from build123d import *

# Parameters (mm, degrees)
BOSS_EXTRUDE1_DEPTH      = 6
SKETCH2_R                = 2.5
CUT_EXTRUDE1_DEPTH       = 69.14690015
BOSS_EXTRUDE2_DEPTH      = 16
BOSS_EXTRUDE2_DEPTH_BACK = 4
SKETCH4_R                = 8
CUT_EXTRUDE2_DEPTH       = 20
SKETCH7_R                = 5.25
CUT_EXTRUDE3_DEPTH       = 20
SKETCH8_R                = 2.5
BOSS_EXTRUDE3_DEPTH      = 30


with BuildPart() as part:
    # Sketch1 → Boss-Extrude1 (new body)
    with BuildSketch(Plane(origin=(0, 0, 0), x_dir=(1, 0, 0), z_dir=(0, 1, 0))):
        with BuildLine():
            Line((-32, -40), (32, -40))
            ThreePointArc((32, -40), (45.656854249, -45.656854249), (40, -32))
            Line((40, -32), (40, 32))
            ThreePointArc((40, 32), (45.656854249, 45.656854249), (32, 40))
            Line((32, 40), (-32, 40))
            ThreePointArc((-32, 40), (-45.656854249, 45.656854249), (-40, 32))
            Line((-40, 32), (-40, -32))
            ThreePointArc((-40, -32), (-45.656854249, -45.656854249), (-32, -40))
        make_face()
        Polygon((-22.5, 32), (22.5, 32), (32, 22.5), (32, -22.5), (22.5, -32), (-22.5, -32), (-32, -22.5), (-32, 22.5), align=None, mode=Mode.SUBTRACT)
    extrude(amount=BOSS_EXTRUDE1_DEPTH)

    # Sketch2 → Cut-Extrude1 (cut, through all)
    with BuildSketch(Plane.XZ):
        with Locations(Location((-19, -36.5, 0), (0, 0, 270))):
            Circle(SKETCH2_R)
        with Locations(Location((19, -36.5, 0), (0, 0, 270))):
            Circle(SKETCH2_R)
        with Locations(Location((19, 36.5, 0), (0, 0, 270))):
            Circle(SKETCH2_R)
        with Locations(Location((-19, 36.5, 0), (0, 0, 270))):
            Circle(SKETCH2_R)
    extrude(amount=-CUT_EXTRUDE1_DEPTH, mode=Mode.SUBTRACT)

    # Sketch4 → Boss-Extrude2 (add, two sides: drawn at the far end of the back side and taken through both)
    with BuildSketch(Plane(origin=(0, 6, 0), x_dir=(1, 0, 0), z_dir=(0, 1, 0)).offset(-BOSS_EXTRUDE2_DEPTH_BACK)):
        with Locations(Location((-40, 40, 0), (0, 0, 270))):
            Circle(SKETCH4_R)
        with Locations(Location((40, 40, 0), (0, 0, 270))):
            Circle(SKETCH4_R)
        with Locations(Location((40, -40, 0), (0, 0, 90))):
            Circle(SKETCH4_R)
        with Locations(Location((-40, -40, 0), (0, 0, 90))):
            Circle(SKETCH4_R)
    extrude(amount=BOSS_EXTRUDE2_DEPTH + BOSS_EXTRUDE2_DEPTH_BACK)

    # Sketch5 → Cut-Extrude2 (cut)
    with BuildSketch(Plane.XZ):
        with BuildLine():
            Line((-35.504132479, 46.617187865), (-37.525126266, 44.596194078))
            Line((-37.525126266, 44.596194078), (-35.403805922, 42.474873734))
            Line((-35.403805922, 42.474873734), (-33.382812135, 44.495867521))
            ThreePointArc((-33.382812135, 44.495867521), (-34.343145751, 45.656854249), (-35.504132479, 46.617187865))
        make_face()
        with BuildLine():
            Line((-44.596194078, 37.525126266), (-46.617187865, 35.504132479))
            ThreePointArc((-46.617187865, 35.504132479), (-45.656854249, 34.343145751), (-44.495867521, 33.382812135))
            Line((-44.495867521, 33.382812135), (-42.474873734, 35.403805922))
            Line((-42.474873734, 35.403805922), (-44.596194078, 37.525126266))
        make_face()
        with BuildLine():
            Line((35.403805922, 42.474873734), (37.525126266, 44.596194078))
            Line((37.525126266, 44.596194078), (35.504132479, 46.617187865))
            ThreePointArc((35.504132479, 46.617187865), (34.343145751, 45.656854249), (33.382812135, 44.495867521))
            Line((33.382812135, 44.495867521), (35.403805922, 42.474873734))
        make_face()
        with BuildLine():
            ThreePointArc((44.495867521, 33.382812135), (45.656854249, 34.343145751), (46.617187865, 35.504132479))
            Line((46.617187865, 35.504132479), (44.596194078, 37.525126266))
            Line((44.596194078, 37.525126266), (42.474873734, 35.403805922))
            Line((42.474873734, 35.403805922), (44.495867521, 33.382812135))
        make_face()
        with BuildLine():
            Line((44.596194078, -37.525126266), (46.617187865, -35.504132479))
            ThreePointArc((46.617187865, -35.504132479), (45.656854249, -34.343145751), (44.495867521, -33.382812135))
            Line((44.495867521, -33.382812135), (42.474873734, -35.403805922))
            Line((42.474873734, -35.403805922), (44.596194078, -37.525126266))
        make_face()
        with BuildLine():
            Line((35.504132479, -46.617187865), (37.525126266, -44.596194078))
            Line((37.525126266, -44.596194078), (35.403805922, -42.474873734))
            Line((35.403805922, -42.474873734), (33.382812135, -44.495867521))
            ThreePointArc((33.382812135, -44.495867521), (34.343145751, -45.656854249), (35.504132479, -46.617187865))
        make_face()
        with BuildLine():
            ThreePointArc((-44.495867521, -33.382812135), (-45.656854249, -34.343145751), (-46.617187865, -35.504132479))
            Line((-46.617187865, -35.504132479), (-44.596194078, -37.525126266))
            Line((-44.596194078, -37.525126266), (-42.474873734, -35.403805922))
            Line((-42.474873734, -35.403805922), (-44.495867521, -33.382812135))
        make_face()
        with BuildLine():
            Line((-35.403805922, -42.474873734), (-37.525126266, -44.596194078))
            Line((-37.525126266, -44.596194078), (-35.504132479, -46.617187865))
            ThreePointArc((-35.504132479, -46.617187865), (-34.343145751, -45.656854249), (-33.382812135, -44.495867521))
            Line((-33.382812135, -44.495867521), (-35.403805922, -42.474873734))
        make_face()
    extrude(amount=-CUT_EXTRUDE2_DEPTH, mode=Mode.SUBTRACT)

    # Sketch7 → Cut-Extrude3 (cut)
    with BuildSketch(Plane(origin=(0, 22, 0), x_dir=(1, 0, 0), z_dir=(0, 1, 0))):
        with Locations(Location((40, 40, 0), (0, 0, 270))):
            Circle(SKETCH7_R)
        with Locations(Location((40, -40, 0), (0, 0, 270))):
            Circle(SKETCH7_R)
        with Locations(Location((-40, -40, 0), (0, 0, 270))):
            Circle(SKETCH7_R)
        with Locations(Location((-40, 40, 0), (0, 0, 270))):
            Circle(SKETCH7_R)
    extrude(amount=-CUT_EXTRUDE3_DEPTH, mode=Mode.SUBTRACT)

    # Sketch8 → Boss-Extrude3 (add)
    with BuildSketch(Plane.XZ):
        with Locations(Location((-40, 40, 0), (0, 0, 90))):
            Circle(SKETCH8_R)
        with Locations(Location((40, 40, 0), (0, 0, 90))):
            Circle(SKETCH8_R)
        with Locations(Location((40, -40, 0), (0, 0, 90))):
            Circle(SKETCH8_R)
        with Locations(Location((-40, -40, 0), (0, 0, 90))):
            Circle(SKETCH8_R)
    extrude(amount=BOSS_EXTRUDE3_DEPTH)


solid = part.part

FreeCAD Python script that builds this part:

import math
import FreeCAD as App
import Part
import Sketcher
from FreeCAD import Vector


def add_polygon(sketch, points):
    """Adds a closed chain of lines whose ends are joined by coincident constraints."""
    first, n = sketch.GeometryCount, len(points)
    for a, b in zip(points, points[1:] + points[:1]):
        sketch.addGeometry(Part.LineSegment(App.Vector(*a, 0), App.Vector(*b, 0)), False)
    for i in range(n):
        sketch.addConstraint(Sketcher.Constraint("Coincident", first + i, 2, first + (i + 1) % n, 1))

doc = App.newDocument("Part")
body = doc.addObject("PartDesign::Body", "Body")

sketch1 = doc.addObject("Sketcher::SketchObject", "Sketch")
body.addObject(sketch1)
sketch1.AttachmentSupport = (doc.XZ_Plane, [""])
sketch1.MapMode = "FlatFace"
sketch1.addGeometry(Part.LineSegment(Vector(-32, 40, 0), Vector(32, 40, 0)), False)
sketch1.addGeometry(Part.ArcOfCircle(Part.Circle(Vector(40, 40, 0), Vector(0, 0, 1), 8), math.radians(-90), math.radians(180)), False)
sketch1.addGeometry(Part.LineSegment(Vector(40, 32, 0), Vector(40, -32, 0)), False)
sketch1.addGeometry(Part.ArcOfCircle(Part.Circle(Vector(40, -40, 0), Vector(0, 0, 1), 8), math.radians(180), math.radians(450)), False)
sketch1.addGeometry(Part.LineSegment(Vector(32, -40, 0), Vector(-32, -40, 0)), False)
sketch1.addGeometry(Part.ArcOfCircle(Part.Circle(Vector(-40, -40, 0), Vector(0, 0, 1), 8), math.radians(90), math.radians(360)), False)
sketch1.addGeometry(Part.LineSegment(Vector(-40, -32, 0), Vector(-40, 32, 0)), False)
sketch1.addGeometry(Part.ArcOfCircle(Part.Circle(Vector(-40, 40, 0), Vector(0, 0, 1), 8), math.radians(0), math.radians(270)), False)
add_polygon(sketch1, [(-32, -22.5), (-22.5, -32), (22.5, -32), (32, -22.5), (32, 22.5), (22.5, 32), (-22.5, 32), (-32, 22.5)])
sketch1.addConstraint([
    Sketcher.Constraint("Coincident", 0, 2, 1, 2),
    Sketcher.Constraint("Coincident", 1, 1, 2, 1),
    Sketcher.Constraint("Coincident", 2, 2, 3, 2),
    Sketcher.Constraint("Coincident", 3, 1, 4, 1),
    Sketcher.Constraint("Coincident", 4, 2, 5, 2),
    Sketcher.Constraint("Coincident", 5, 1, 6, 1),
    Sketcher.Constraint("Coincident", 6, 2, 7, 2),
    Sketcher.Constraint("Coincident", 7, 1, 0, 1),
    Sketcher.Constraint("Horizontal", 0),
    Sketcher.Constraint("Vertical", 2),
    Sketcher.Constraint("Horizontal", 4),
    Sketcher.Constraint("Vertical", 6),
    Sketcher.Constraint("Horizontal", 9),
    Sketcher.Constraint("Vertical", 11),
    Sketcher.Constraint("Horizontal", 13),
    Sketcher.Constraint("Vertical", 15),
    Sketcher.Constraint("Equal", 1, 3),
    Sketcher.Constraint("Equal", 3, 5),
    Sketcher.Constraint("Equal", 5, 7),
    Sketcher.Constraint("Symmetric", 1, 3, 5, 3, -1, 1),
    Sketcher.Constraint("Symmetric", 3, 3, 7, 3, -1, 1),
    Sketcher.Constraint("Symmetric", 8, 2, 12, 2, -1, 1),
    Sketcher.Constraint("Symmetric", 10, 2, 14, 2, -1, 1),
    Sketcher.Constraint("Symmetric", 3, 3, 5, 3, -2),
    Sketcher.Constraint("Perpendicular", 8, 10),
    Sketcher.Constraint("Perpendicular", 10, 12),
    Sketcher.Constraint("Perpendicular", 12, 14),
    Sketcher.Constraint("Horizontal", 7, 3, 0, 2),
    Sketcher.Constraint("Horizontal", 5, 3, 3, 1),
    Sketcher.Constraint("Horizontal", 5, 1, 8, 2),
    Sketcher.Constraint("Horizontal", 11, 2, 14, 2),
    Sketcher.Constraint("Vertical", 3, 3, 1, 1),
    Sketcher.Constraint("Vertical", 7, 3, 5, 1),
    Sketcher.Constraint("Vertical", 3, 1, 10, 2),
    Sketcher.Constraint("Vertical", 9, 2, 12, 2),
    Sketcher.Constraint("Equal", 4, 2),
    Sketcher.Constraint("Radius", 1, 8.0),
    Sketcher.Constraint("DistanceX", 0, 1, 0, 2, 64.0),
    Sketcher.Constraint("DistanceX", 9, 1, 9, 2, 45.0),
])
pad1 = doc.addObject("PartDesign::Pad", "Pad")
body.addObject(pad1)
pad1.Profile = sketch1
pad1.Length = 6
pad1.Reversed = True

sketch2 = doc.addObject("Sketcher::SketchObject", "Sketch001")
body.addObject(sketch2)
sketch2.AttachmentSupport = (doc.XZ_Plane, [""])
sketch2.MapMode = "FlatFace"
sketch2.addGeometry([
    Part.Circle(Vector(-19, -36.5, 0), Vector(0, 0, 1), 2.5),
    Part.Circle(Vector(19, -36.5, 0), Vector(0, 0, 1), 2.5),
    Part.Circle(Vector(19, 36.5, 0), Vector(0, 0, 1), 2.5),
    Part.Circle(Vector(-19, 36.5, 0), Vector(0, 0, 1), 2.5),
], False)
sketch2.addConstraint([
    Sketcher.Constraint("Equal", 0, 1),
    Sketcher.Constraint("Equal", 1, 2),
    Sketcher.Constraint("Equal", 2, 3),
    Sketcher.Constraint("Symmetric", 0, 3, 2, 3, -1, 1),
    Sketcher.Constraint("Symmetric", 1, 3, 3, 3, -1, 1),
    Sketcher.Constraint("Symmetric", 0, 3, 1, 3, -2),
    Sketcher.Constraint("Diameter", 0, 5.0),
    Sketcher.Constraint("DistanceX", 0, 3, -1, 1, 19.0),
    Sketcher.Constraint("DistanceY", 1, 3, 2, 3, 73.0),
])
pocket1 = doc.addObject("PartDesign::Pocket", "Pocket")
body.addObject(pocket1)
pocket1.Profile = sketch2
pocket1.Type = "ThroughAll"

sketch3 = doc.addObject("Sketcher::SketchObject", "Sketch002")
body.addObject(sketch3)
sketch3.AttachmentSupport = (doc.XZ_Plane, [""])
sketch3.MapMode = "FlatFace"
sketch3.AttachmentOffset = App.Placement(Vector(0, 0, -6), App.Rotation())
sketch3.addGeometry([
    Part.Circle(Vector(-40, -40, 0), Vector(0, 0, 1), 8),
    Part.Circle(Vector(40, -40, 0), Vector(0, 0, 1), 8),
    Part.Circle(Vector(40, 40, 0), Vector(0, 0, 1), 8),
    Part.Circle(Vector(-40, 40, 0), Vector(0, 0, 1), 8),
], False)
sketch3.addConstraint([
    Sketcher.Constraint("Equal", 0, 1),
    Sketcher.Constraint("Equal", 1, 2),
    Sketcher.Constraint("Equal", 2, 3),
    Sketcher.Constraint("Symmetric", 0, 3, 2, 3, -1, 1),
    Sketcher.Constraint("Symmetric", 1, 3, 3, 3, -1, 1),
    Sketcher.Constraint("Symmetric", 0, 3, 1, 3, -2),
    Sketcher.Constraint("Diameter", 0, 16.0),
    Sketcher.Constraint("DistanceX", 0, 3, -1, 1, 40.0),
    Sketcher.Constraint("DistanceY", 0, 3, -1, 1, 40.0),
])
pad2 = doc.addObject("PartDesign::Pad", "Pad001")
body.addObject(pad2)
pad2.Profile = sketch3
pad2.Type = "TwoLengths"
pad2.Length = 16
pad2.Length2 = 4
pad2.Reversed = True

sketch4 = doc.addObject("Sketcher::SketchObject", "Sketch003")
body.addObject(sketch4)
sketch4.AttachmentSupport = (doc.XZ_Plane, [""])
sketch4.MapMode = "FlatFace"
sketch4.addGeometry([
    Part.LineSegment(Vector(-35.504132, 46.617188, 0), Vector(-37.525126, 44.596194, 0)),
    Part.LineSegment(Vector(-37.525126, 44.596194, 0), Vector(-35.403806, 42.474874, 0)),
    Part.LineSegment(Vector(-35.403806, 42.474874, 0), Vector(-33.382812, 44.495868, 0)),
    Part.ArcOfCircle(Part.Circle(Vector(-40, 40, 0), Vector(0, 0, 1), 8), math.radians(34.193077), math.radians(55.806923)),
    Part.LineSegment(Vector(-44.596194, 37.525126, 0), Vector(-46.617188, 35.504132, 0)),
    Part.ArcOfCircle(Part.Circle(Vector(-40, 40, 0), Vector(0, 0, 1), 8), math.radians(-145.806923), math.radians(-124.193077)),
    Part.LineSegment(Vector(-44.495868, 33.382812, 0), Vector(-42.474874, 35.403806, 0)),
    Part.LineSegment(Vector(-42.474874, 35.403806, 0), Vector(-44.596194, 37.525126, 0)),
    Part.LineSegment(Vector(35.403806, 42.474874, 0), Vector(37.525126, 44.596194, 0)),
    Part.LineSegment(Vector(37.525126, 44.596194, 0), Vector(35.504132, 46.617188, 0)),
    Part.ArcOfCircle(Part.Circle(Vector(40, 40, 0), Vector(0, 0, 1), 8), math.radians(124.193077), math.radians(145.806923)),
    Part.LineSegment(Vector(33.382812, 44.495868, 0), Vector(35.403806, 42.474874, 0)),
    Part.ArcOfCircle(Part.Circle(Vector(40, 40, 0), Vector(0, 0, 1), 8), math.radians(-55.806923), math.radians(-34.193077)),
    Part.LineSegment(Vector(46.617188, 35.504132, 0), Vector(44.596194, 37.525126, 0)),
    Part.LineSegment(Vector(44.596194, 37.525126, 0), Vector(42.474874, 35.403806, 0)),
    Part.LineSegment(Vector(42.474874, 35.403806, 0), Vector(44.495868, 33.382812, 0)),
    Part.LineSegment(Vector(44.596194, -37.525126, 0), Vector(46.617188, -35.504132, 0)),
    Part.ArcOfCircle(Part.Circle(Vector(40, -40, 0), Vector(0, 0, 1), 8), math.radians(34.193077), math.radians(55.806923)),
    Part.LineSegment(Vector(44.495868, -33.382812, 0), Vector(42.474874, -35.403806, 0)),
    Part.LineSegment(Vector(42.474874, -35.403806, 0), Vector(44.596194, -37.525126, 0)),
    Part.LineSegment(Vector(35.504132, -46.617188, 0), Vector(37.525126, -44.596194, 0)),
    Part.LineSegment(Vector(37.525126, -44.596194, 0), Vector(35.403806, -42.474874, 0)),
    Part.LineSegment(Vector(35.403806, -42.474874, 0), Vector(33.382812, -44.495868, 0)),
    Part.ArcOfCircle(Part.Circle(Vector(40, -40, 0), Vector(0, 0, 1), 8), math.radians(-145.806923), math.radians(-124.193077)),
    Part.ArcOfCircle(Part.Circle(Vector(-40, -40, 0), Vector(0, 0, 1), 8), math.radians(124.193077), math.radians(145.806923)),
    Part.LineSegment(Vector(-46.617188, -35.504132, 0), Vector(-44.596194, -37.525126, 0)),
    Part.LineSegment(Vector(-44.596194, -37.525126, 0), Vector(-42.474874, -35.403806, 0)),
    Part.LineSegment(Vector(-42.474874, -35.403806, 0), Vector(-44.495868, -33.382812, 0)),
    Part.LineSegment(Vector(-35.403806, -42.474874, 0), Vector(-37.525126, -44.596194, 0)),
    Part.LineSegment(Vector(-37.525126, -44.596194, 0), Vector(-35.504132, -46.617188, 0)),
    Part.ArcOfCircle(Part.Circle(Vector(-40, -40, 0), Vector(0, 0, 1), 8), math.radians(-55.806923), math.radians(-34.193077)),
    Part.LineSegment(Vector(-33.382812, -44.495868, 0), Vector(-35.403806, -42.474874, 0)),
], False)
sketch4.addConstraint([
    Sketcher.Constraint("Coincident", 0, 2, 1, 1),
    Sketcher.Constraint("Coincident", 1, 2, 2, 1),
    Sketcher.Constraint("Coincident", 2, 2, 3, 1),
    Sketcher.Constraint("Coincident", 3, 2, 0, 1),
    Sketcher.Constraint("Coincident", 4, 2, 5, 1),
    Sketcher.Constraint("Coincident", 5, 2, 6, 1),
    Sketcher.Constraint("Coincident", 6, 2, 7, 1),
    Sketcher.Constraint("Coincident", 7, 2, 4, 1),
    Sketcher.Constraint("Coincident", 8, 2, 9, 1),
    Sketcher.Constraint("Coincident", 9, 2, 10, 1),
    Sketcher.Constraint("Coincident", 10, 2, 11, 1),
    Sketcher.Constraint("Coincident", 11, 2, 8, 1),
    Sketcher.Constraint("Coincident", 12, 2, 13, 1),
    Sketcher.Constraint("Coincident", 13, 2, 14, 1),
    Sketcher.Constraint("Coincident", 14, 2, 15, 1),
    Sketcher.Constraint("Coincident", 15, 2, 12, 1),
    Sketcher.Constraint("Coincident", 16, 2, 17, 1),
    Sketcher.Constraint("Coincident", 17, 2, 18, 1),
    Sketcher.Constraint("Coincident", 18, 2, 19, 1),
    Sketcher.Constraint("Coincident", 19, 2, 16, 1),
    Sketcher.Constraint("Coincident", 20, 2, 21, 1),
    Sketcher.Constraint("Coincident", 21, 2, 22, 1),
    Sketcher.Constraint("Coincident", 22, 2, 23, 1),
    Sketcher.Constraint("Coincident", 23, 2, 20, 1),
    Sketcher.Constraint("Coincident", 24, 2, 25, 1),
    Sketcher.Constraint("Coincident", 25, 2, 26, 1),
    Sketcher.Constraint("Coincident", 26, 2, 27, 1),
    Sketcher.Constraint("Coincident", 27, 2, 24, 1),
    Sketcher.Constraint("Coincident", 28, 2, 29, 1),
    Sketcher.Constraint("Coincident", 29, 2, 30, 1),
    Sketcher.Constraint("Coincident", 30, 2, 31, 1),
    Sketcher.Constraint("Coincident", 31, 2, 28, 1),
    Sketcher.Constraint("Coincident", 5, 3, 3, 3),
    Sketcher.Constraint("Coincident", 12, 3, 10, 3),
    Sketcher.Constraint("Coincident", 23, 3, 17, 3),
    Sketcher.Constraint("Coincident", 30, 3, 24, 3),
    Sketcher.Constraint("Equal", 3, 5),
    Sketcher.Constraint("Equal", 5, 10),
    Sketcher.Constraint("Equal", 10, 12),
    Sketcher.Constraint("Equal", 12, 17),
    Sketcher.Constraint("Equal", 17, 23),
    Sketcher.Constraint("Equal", 23, 24),
    Sketcher.Constraint("Equal", 24, 30),
    Sketcher.Constraint("Symmetric", 3, 3, 17, 3, -1, 1),
    Sketcher.Constraint("Symmetric", 10, 3, 24, 3, -1, 1),
    Sketcher.Constraint("Symmetric", 6, 2, 18, 2, -1, 1),
    Sketcher.Constraint("Symmetric", 7, 2, 19, 2, -1, 1),
    Sketcher.Constraint("Symmetric", 0, 2, 20, 2, -1, 1),
    Sketcher.Constraint("Symmetric", 1, 2, 21, 2, -1, 1),
    Sketcher.Constraint("Symmetric", 13, 2, 25, 2, -1, 1),
    Sketcher.Constraint("Symmetric", 14, 2, 26, 2, -1, 1),
    Sketcher.Constraint("Symmetric", 8, 2, 28, 2, -1, 1),
    Sketcher.Constraint("Symmetric", 11, 2, 31, 2, -1, 1),
    Sketcher.Constraint("Symmetric", 3, 3, 10, 3, -2),
    Sketcher.Constraint("Symmetric", 0, 2, 8, 2, -2),
    Sketcher.Constraint("Symmetric", 1, 2, 11, 2, -2),
    Sketcher.Constraint("Symmetric", 7, 2, 13, 2, -2),
    Sketcher.Constraint("Symmetric", 6, 2, 14, 2, -2),
    Sketcher.Constraint("Perpendicular", 0, 1),
    Sketcher.Constraint("Perpendicular", 1, 2),
    Sketcher.Constraint("Parallel", 2, 4),
    Sketcher.Constraint("Parallel", 4, 6),
    Sketcher.Constraint("Perpendicular", 6, 7),
    Sketcher.Constraint("Perpendicular", 7, 8),
    Sketcher.Constraint("Perpendicular", 8, 9),
    Sketcher.Constraint("Parallel", 9, 11),
    Sketcher.Constraint("Parallel", 11, 13),
    Sketcher.Constraint("Perpendicular", 14, 15),
    Sketcher.Constraint("Perpendicular", 15, 16),
    Sketcher.Constraint("Parallel", 16, 18),
    Sketcher.Constraint("Perpendicular", 19, 20),
    Sketcher.Constraint("Perpendicular", 21, 22),
    Sketcher.Constraint("Perpendicular", 22, 25),
    Sketcher.Constraint("Perpendicular", 26, 27),
    Sketcher.Constraint("Perpendicular", 28, 29),
    Sketcher.Constraint("Parallel", 29, 31),
    Sketcher.Constraint("Equal", 0, 2),
    Sketcher.Constraint("Equal", 2, 4),
    Sketcher.Constraint("Equal", 4, 6),
    Sketcher.Constraint("Equal", 1, 7),
    Sketcher.Constraint("Radius", 3, 8.0),
    Sketcher.Constraint("Distance", 1, 3.0),
    Sketcher.Constraint("DistanceX", 3, 3, -1, 1, 40.0),
    Sketcher.Constraint("DistanceY", -1, 1, 3, 3, 40.0),
    Sketcher.Constraint("DistanceX", 4, 2, 0, 2, 9.092062),
])
pocket2 = doc.addObject("PartDesign::Pocket", "Pocket001")
body.addObject(pocket2)
pocket2.Profile = sketch4
pocket2.Length = 20

sketch5 = doc.addObject("Sketcher::SketchObject", "Sketch004")
body.addObject(sketch5)
sketch5.AttachmentSupport = (doc.XZ_Plane, [""])
sketch5.MapMode = "FlatFace"
sketch5.AttachmentOffset = App.Placement(Vector(0, 0, -22), App.Rotation())
sketch5.addGeometry([
    Part.Circle(Vector(40, -40, 0), Vector(0, 0, 1), 5.25),
    Part.Circle(Vector(40, 40, 0), Vector(0, 0, 1), 5.25),
    Part.Circle(Vector(-40, 40, 0), Vector(0, 0, 1), 5.25),
    Part.Circle(Vector(-40, -40, 0), Vector(0, 0, 1), 5.25),
], False)
sketch5.addConstraint([
    Sketcher.Constraint("Equal", 0, 1),
    Sketcher.Constraint("Equal", 1, 2),
    Sketcher.Constraint("Equal", 2, 3),
    Sketcher.Constraint("Symmetric", 0, 3, 2, 3, -1, 1),
    Sketcher.Constraint("Symmetric", 1, 3, 3, 3, -1, 1),
    Sketcher.Constraint("Symmetric", 1, 3, 2, 3, -2),
    Sketcher.Constraint("Diameter", 0, 10.5),
    Sketcher.Constraint("DistanceX", -1, 1, 0, 3, 40.0),
    Sketcher.Constraint("DistanceY", 0, 3, -1, 1, 40.0),
])
pocket3 = doc.addObject("PartDesign::Pocket", "Pocket002")
body.addObject(pocket3)
pocket3.Profile = sketch5
pocket3.Length = 20
pocket3.Reversed = True

sketch6 = doc.addObject("Sketcher::SketchObject", "Sketch005")
body.addObject(sketch6)
sketch6.AttachmentSupport = (doc.XZ_Plane, [""])
sketch6.MapMode = "FlatFace"
sketch6.addGeometry([
    Part.Circle(Vector(-40, 40, 0), Vector(0, 0, 1), 2.5),
    Part.Circle(Vector(40, 40, 0), Vector(0, 0, 1), 2.5),
    Part.Circle(Vector(40, -40, 0), Vector(0, 0, 1), 2.5),
    Part.Circle(Vector(-40, -40, 0), Vector(0, 0, 1), 2.5),
], False)
sketch6.addConstraint([
    Sketcher.Constraint("Equal", 0, 1),
    Sketcher.Constraint("Equal", 1, 2),
    Sketcher.Constraint("Equal", 2, 3),
    Sketcher.Constraint("Symmetric", 0, 3, 2, 3, -1, 1),
    Sketcher.Constraint("Symmetric", 1, 3, 3, 3, -1, 1),
    Sketcher.Constraint("Symmetric", 0, 3, 1, 3, -2),
    Sketcher.Constraint("Diameter", 0, 5.0),
    Sketcher.Constraint("DistanceX", 0, 3, -1, 1, 40.0),
    Sketcher.Constraint("DistanceY", -1, 1, 0, 3, 40.0),
])
pad3 = doc.addObject("PartDesign::Pad", "Pad002")
body.addObject(pad3)
pad3.Profile = sketch6
pad3.Length = 30

doc.recompute()
